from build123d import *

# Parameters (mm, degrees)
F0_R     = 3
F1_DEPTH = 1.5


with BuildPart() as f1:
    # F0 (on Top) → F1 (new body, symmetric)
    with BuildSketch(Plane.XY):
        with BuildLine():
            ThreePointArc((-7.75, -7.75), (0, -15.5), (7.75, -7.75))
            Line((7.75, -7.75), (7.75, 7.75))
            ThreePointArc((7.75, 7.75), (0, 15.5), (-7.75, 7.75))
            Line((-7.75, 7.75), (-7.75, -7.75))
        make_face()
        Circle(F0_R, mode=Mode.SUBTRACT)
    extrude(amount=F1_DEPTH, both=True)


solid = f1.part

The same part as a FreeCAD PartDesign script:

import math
import FreeCAD as App
import Part
import Sketcher

V = App.Vector
Q = App.Units.Quantity

doc = App.newDocument("Part")
body = doc.addObject("PartDesign::Body", "Body")

# Sketch on XY plane
sketch1 = body.newObject("Sketcher::SketchObject", "Sketch")
sketch1.AttachmentSupport = (doc.getObject("XY_Plane"), [""])
sketch1.MapMode = "FlatFace"
sketch1.addGeometry([
    Part.ArcOfCircle(Part.Circle(V(0, -7.75, 0), V(0, 0, 1), 7.75), math.radians(180), math.radians(360)),  # 0
    Part.LineSegment(V(7.75, -7.75, 0), V(7.75, 7.75, 0)),  # 1
    Part.ArcOfCircle(Part.Circle(V(0, 7.75, 0), V(0, 0, 1), 7.75), math.radians(0), math.radians(180)),  # 2
    Part.LineSegment(V(-7.75, 7.75, 0), V(-7.75, -7.75, 0)),  # 3
    Part.Circle(V(0, 0, 0), V(0, 0, 1), 3),  # 4
], False)
sketch1.addConstraint([
    Sketcher.Constraint("Tangent", 0, 2, 1, 1),
    Sketcher.Constraint("Tangent", 1, 2, 2, 1),
    Sketcher.Constraint("Tangent", 2, 2, 3, 1),
    Sketcher.Constraint("Tangent", 3, 2, 0, 1),
    Sketcher.Constraint("Vertical", 1),
    Sketcher.Constraint("Vertical", 3),
    Sketcher.Constraint("Coincident", 4, 3, -1, 1),
    Sketcher.Constraint("Symmetric", 0, 3, 2, 3, -1, 1),
    Sketcher.Constraint("Diameter", 4, Q("6 mm")),
    Sketcher.Constraint("Radius", 0, Q("7.75 mm")),
    Sketcher.Constraint("DistanceY", 1, 1, 1, 2, Q("15.5 mm")),
])
pad1 = body.newObject("PartDesign::Pad", "Pad")
pad1.Profile = sketch1
pad1.Length = 3
pad1.Midplane = True

doc.recompute()
